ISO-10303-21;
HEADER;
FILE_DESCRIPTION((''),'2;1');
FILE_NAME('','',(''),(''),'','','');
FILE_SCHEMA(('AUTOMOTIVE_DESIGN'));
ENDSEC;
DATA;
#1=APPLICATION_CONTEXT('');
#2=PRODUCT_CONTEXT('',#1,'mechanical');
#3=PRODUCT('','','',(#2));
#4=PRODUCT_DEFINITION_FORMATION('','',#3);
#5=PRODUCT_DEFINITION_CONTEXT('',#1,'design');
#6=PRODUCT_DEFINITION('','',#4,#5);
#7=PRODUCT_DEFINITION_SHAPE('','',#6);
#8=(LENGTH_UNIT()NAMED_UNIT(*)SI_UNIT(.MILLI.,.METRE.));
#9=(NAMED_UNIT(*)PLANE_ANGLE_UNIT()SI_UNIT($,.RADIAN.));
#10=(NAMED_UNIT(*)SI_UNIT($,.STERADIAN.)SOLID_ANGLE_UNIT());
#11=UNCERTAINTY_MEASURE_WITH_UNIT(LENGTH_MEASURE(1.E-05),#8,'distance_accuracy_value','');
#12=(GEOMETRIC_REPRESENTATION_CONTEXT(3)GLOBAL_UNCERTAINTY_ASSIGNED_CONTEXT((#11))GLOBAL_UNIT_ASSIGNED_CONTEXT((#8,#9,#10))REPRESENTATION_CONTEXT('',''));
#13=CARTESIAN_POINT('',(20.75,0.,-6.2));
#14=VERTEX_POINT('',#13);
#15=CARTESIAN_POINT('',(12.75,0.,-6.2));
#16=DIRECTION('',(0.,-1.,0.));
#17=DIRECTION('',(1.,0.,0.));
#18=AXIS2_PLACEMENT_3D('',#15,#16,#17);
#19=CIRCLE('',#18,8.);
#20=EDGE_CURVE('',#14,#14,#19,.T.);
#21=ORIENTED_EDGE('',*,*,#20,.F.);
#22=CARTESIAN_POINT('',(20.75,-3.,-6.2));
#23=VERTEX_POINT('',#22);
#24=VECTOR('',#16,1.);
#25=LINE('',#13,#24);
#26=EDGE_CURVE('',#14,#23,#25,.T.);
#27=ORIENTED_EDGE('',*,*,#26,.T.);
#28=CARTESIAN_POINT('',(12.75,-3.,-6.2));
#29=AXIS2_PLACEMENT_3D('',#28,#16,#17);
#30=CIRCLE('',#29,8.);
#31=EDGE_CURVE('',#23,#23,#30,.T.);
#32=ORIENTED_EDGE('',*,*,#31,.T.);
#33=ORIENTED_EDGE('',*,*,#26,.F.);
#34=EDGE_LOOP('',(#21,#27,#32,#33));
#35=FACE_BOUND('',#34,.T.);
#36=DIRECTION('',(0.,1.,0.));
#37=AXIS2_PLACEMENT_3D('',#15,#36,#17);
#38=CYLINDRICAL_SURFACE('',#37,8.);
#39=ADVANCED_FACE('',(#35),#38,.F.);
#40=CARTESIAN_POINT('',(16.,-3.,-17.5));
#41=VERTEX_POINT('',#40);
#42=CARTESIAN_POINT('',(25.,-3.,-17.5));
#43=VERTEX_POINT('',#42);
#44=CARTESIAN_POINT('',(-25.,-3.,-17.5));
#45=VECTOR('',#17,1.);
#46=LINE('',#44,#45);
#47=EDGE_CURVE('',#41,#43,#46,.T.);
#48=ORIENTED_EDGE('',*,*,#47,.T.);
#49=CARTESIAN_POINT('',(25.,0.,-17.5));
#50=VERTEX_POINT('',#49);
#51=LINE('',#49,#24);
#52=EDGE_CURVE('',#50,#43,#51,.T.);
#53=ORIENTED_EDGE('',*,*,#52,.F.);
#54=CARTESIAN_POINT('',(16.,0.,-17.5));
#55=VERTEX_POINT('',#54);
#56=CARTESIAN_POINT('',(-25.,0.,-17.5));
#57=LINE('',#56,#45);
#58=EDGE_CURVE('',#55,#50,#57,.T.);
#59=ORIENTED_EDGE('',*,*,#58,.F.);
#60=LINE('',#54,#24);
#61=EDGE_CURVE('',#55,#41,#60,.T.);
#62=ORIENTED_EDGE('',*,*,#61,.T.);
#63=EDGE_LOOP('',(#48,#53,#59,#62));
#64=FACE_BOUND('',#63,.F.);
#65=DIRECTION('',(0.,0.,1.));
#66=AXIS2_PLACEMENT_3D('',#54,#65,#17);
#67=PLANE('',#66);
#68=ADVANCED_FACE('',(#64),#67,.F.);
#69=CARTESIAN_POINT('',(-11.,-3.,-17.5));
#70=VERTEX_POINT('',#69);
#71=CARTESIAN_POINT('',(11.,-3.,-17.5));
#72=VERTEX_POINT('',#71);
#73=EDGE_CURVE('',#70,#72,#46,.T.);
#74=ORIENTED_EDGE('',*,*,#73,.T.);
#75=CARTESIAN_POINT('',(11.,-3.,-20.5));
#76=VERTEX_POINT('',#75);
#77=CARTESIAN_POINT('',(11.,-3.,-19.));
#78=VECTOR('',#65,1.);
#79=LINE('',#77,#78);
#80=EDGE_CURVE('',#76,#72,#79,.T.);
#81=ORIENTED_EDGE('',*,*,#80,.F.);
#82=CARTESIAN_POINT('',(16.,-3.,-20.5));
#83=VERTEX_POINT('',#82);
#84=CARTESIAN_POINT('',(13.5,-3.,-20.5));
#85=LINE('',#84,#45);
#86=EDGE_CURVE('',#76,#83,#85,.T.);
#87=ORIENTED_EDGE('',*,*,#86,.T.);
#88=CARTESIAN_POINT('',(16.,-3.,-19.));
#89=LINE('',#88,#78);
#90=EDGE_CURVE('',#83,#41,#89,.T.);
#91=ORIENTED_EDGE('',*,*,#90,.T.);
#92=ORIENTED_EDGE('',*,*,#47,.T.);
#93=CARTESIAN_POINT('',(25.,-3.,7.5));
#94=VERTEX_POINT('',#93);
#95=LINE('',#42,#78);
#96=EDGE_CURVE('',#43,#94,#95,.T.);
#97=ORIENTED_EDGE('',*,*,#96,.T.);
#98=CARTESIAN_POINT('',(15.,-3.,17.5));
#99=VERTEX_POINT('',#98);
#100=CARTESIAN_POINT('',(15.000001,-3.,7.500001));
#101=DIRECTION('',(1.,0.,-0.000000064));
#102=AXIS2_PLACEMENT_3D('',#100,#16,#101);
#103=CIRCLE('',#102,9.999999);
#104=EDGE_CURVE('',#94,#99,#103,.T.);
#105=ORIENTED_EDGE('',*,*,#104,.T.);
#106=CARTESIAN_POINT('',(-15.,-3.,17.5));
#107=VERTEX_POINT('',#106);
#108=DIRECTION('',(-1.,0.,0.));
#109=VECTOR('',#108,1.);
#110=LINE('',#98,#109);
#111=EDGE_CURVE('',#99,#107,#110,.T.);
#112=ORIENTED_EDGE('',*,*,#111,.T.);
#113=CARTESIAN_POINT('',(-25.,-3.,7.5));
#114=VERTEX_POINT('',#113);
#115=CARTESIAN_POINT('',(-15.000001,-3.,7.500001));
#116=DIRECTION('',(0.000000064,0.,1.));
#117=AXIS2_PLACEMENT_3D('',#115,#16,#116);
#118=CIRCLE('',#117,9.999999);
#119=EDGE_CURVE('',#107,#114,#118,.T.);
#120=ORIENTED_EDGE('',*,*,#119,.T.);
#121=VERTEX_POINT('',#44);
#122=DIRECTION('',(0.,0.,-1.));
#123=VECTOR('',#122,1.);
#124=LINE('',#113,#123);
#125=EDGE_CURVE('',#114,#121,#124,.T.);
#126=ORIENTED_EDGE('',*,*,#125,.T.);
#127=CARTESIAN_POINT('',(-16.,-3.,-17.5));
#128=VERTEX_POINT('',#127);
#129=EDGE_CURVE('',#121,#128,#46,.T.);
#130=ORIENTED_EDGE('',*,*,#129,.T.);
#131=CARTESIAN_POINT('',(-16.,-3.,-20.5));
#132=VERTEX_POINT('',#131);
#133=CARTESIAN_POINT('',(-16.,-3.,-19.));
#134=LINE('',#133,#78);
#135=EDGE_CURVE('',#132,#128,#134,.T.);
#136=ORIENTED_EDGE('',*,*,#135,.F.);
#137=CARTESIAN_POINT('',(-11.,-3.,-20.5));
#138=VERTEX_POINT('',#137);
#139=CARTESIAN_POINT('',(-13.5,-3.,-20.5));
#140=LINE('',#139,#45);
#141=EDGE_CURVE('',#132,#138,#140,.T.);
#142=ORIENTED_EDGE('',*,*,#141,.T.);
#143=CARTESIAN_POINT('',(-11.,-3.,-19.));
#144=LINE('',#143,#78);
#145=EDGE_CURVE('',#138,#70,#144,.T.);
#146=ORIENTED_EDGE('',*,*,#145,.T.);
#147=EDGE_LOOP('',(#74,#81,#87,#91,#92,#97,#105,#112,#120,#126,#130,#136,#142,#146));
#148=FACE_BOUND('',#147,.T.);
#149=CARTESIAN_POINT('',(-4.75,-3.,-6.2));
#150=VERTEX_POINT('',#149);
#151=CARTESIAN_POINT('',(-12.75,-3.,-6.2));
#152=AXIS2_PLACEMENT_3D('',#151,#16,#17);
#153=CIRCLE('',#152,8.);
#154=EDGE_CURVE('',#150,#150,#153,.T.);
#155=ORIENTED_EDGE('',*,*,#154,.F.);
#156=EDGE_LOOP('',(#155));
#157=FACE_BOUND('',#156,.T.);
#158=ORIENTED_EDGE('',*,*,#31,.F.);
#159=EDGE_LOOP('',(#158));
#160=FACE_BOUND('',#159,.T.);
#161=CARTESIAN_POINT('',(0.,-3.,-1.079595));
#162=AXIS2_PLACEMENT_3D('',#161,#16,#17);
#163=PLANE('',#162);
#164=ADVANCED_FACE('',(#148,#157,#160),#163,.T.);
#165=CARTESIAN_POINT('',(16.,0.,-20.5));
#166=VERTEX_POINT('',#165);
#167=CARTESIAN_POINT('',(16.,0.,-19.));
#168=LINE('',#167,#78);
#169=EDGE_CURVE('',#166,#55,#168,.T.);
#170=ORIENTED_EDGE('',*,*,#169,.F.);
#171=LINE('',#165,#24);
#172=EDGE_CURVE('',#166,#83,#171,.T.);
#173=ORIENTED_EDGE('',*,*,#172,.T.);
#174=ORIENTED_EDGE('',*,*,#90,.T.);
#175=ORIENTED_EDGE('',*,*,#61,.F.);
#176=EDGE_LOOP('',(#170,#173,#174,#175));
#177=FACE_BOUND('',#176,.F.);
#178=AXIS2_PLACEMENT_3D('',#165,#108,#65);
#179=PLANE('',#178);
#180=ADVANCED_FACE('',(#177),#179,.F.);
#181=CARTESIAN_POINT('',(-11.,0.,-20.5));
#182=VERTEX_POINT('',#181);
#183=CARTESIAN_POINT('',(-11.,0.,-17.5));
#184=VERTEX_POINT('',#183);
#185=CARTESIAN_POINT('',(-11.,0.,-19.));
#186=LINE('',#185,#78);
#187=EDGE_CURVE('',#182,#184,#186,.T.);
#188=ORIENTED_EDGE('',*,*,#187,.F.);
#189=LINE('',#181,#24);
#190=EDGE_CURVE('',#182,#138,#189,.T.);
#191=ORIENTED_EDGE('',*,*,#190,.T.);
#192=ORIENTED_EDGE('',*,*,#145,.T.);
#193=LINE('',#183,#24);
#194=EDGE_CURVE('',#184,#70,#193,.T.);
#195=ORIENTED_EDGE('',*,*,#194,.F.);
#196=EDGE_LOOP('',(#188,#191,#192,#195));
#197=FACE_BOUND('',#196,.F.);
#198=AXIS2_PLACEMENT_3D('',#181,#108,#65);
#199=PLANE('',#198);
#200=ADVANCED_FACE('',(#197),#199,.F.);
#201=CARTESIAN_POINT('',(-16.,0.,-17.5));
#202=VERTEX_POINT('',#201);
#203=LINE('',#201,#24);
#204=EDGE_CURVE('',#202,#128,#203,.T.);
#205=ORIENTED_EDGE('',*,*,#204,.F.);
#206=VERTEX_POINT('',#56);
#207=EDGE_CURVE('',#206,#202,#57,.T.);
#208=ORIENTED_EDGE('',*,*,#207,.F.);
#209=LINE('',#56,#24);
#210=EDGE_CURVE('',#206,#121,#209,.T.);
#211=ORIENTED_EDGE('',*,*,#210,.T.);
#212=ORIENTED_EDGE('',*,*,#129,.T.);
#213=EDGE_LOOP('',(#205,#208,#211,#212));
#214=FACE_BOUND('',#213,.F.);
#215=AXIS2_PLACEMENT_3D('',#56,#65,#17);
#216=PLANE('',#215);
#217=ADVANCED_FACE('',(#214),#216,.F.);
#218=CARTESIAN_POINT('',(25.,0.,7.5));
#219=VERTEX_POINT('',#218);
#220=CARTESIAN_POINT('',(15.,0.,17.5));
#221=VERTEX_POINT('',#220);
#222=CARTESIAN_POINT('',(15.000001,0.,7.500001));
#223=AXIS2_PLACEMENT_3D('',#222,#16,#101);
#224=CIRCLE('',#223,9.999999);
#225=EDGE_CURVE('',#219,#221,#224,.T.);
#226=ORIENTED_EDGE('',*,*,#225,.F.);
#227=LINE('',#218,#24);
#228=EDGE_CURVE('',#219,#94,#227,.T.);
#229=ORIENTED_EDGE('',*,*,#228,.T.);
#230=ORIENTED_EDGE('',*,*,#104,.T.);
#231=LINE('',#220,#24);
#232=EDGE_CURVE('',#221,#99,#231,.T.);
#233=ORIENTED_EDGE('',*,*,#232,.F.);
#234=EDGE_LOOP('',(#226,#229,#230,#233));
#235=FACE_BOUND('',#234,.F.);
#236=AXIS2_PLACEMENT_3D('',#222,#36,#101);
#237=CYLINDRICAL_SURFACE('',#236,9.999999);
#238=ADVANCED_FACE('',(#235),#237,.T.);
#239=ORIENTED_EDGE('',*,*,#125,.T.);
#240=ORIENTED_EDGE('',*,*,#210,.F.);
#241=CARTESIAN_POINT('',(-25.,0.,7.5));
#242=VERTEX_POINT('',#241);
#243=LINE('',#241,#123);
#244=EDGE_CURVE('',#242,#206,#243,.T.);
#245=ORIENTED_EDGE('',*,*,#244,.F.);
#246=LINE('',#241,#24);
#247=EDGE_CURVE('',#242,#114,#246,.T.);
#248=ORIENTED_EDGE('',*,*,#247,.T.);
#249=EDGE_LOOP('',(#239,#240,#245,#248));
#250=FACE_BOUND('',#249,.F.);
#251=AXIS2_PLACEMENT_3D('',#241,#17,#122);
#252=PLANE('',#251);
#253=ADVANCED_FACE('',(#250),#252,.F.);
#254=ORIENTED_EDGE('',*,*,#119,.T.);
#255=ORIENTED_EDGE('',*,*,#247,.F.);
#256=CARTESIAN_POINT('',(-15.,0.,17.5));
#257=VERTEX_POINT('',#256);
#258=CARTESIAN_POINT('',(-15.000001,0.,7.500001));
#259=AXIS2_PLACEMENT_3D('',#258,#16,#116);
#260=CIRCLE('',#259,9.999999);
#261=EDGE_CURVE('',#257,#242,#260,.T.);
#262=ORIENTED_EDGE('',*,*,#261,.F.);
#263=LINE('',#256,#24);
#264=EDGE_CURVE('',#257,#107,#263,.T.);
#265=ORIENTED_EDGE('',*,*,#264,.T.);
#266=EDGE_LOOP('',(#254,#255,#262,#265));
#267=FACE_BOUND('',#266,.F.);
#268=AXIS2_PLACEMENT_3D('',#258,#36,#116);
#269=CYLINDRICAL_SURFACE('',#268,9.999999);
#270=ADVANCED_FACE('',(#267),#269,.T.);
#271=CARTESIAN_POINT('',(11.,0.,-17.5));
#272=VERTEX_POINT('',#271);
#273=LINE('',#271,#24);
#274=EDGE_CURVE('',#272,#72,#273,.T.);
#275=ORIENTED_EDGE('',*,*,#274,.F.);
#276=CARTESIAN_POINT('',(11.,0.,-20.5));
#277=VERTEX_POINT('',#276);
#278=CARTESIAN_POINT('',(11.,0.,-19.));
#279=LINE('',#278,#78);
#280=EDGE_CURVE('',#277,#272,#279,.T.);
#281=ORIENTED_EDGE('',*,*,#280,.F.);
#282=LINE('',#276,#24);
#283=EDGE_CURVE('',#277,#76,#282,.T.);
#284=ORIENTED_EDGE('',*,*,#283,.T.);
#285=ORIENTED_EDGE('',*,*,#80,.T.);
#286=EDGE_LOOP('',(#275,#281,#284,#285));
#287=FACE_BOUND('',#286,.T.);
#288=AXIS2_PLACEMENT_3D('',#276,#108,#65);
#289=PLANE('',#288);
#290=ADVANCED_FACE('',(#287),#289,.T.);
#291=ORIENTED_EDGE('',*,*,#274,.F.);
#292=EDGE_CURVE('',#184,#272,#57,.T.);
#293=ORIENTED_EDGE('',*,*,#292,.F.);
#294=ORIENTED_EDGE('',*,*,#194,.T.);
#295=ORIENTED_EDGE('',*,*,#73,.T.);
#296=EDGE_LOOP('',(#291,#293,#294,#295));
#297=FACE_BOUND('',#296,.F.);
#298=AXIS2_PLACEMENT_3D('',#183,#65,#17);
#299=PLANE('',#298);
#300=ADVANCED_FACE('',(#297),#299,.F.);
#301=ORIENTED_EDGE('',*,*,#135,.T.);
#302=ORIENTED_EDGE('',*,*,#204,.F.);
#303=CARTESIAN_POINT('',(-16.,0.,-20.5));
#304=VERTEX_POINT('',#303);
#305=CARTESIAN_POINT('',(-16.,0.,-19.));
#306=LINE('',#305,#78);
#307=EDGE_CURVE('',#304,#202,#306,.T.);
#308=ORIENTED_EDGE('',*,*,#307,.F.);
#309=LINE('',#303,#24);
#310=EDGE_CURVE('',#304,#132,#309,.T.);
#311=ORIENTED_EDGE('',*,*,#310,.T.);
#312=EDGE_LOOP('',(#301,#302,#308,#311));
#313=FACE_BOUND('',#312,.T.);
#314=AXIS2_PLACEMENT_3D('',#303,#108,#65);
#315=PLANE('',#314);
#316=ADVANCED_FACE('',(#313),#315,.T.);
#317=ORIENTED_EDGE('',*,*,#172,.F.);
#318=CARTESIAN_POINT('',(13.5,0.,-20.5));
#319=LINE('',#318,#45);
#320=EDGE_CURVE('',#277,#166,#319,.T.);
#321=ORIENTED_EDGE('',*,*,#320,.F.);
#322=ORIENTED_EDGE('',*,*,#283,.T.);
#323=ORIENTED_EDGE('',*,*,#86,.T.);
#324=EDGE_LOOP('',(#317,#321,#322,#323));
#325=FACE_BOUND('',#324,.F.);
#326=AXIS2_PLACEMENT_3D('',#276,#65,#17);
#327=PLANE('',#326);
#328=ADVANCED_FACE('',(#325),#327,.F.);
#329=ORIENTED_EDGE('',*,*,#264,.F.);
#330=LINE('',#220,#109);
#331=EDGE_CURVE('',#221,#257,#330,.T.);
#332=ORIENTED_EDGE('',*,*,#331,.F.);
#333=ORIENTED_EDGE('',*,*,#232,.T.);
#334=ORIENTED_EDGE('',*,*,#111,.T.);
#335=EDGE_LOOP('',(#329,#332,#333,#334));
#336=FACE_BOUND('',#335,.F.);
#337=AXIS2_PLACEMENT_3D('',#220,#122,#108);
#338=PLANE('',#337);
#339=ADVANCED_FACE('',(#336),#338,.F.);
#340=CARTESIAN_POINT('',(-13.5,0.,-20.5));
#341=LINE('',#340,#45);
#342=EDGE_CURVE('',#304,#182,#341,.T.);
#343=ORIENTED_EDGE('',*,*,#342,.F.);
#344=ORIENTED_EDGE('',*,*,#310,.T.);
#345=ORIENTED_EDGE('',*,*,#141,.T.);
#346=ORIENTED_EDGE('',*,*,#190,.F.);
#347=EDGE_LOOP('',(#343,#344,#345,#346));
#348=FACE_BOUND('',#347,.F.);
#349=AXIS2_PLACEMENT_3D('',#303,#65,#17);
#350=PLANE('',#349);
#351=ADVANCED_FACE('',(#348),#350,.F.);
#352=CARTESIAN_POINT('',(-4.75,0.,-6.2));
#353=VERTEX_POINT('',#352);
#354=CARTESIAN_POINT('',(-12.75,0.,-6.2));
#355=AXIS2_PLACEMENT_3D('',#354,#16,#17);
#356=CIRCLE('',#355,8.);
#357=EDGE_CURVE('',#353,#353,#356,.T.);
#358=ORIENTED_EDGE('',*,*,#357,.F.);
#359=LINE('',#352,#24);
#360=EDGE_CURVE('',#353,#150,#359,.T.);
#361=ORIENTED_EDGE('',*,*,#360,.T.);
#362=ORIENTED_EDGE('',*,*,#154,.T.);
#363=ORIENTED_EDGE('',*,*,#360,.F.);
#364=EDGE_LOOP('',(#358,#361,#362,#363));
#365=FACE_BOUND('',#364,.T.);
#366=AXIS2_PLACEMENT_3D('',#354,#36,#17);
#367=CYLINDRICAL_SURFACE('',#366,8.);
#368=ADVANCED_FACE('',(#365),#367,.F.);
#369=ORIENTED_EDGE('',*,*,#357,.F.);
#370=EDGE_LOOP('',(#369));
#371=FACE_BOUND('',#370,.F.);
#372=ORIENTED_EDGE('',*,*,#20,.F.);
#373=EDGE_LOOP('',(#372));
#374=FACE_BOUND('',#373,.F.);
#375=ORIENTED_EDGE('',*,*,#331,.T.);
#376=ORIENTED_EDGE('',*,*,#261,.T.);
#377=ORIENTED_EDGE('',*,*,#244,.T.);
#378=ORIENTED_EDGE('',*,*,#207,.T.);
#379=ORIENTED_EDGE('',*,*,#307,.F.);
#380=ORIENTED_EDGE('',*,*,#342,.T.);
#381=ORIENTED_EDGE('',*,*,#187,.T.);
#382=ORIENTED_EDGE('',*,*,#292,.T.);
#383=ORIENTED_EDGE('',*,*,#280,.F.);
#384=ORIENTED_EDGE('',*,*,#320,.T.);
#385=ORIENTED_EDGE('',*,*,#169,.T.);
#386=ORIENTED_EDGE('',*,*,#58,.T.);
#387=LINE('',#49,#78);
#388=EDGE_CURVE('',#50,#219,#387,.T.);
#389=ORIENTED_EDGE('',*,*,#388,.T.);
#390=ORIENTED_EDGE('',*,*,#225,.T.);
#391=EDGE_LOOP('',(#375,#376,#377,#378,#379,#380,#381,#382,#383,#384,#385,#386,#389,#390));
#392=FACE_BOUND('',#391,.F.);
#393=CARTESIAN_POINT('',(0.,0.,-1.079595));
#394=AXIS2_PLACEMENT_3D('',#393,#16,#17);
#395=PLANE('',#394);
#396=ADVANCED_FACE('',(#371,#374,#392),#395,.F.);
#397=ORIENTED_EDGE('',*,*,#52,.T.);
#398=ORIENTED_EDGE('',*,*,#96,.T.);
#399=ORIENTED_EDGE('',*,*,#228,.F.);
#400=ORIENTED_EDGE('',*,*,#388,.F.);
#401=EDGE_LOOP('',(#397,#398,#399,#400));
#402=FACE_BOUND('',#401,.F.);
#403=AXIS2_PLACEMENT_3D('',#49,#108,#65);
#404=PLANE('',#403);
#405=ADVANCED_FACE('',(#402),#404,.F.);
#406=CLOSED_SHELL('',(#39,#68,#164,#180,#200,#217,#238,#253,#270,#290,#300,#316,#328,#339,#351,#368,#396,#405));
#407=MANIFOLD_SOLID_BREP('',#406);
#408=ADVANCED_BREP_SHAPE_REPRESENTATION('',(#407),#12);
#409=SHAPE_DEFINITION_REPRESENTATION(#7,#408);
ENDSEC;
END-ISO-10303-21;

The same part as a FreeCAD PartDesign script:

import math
import FreeCAD as App
import Part
import Sketcher

V = App.Vector
Q = App.Units.Quantity

doc = App.newDocument("Part")
body = doc.addObject("PartDesign::Body", "Body")

sketch1 = body.newObject("Sketcher::SketchObject", "Sketch")
sketch1.AttachmentSupport = (doc.getObject("XZ_Plane"), [""])
sketch1.MapMode = "FlatFace"
sketch1.addGeometry(Part.LineSegment(V(15, 17.5, 0), V(-15, 17.5, 0)), False)
sketch1.addGeometry(Part.ArcOfCircle(Part.Circle(V(-15, 7.5, 0), V(0, 0, 1), 10), math.radians(90), math.radians(180)), False)
sketch1.addGeometry(Part.LineSegment(V(-25, 7.5, 0), V(-25, -17.5, 0)), False)
sketch1.addGeometry(Part.LineSegment(V(-25, -17.5, 0), V(-16, -17.5, 0)), False)
sketch1.addGeometry(Part.LineSegment(V(-16, -17.5, 0), V(-16, -20.5, 0)), False)
sketch1.addGeometry(Part.LineSegment(V(-16, -20.5, 0), V(-11, -20.5, 0)), False)
sketch1.addGeometry(Part.LineSegment(V(-11, -20.5, 0), V(-11, -17.5, 0)), False)
sketch1.addGeometry(Part.LineSegment(V(-11, -17.5, 0), V(11, -17.5, 0)), False)
sketch1.addGeometry(Part.LineSegment(V(11, -17.5, 0), V(11, -20.5, 0)), False)
sketch1.addGeometry(Part.LineSegment(V(11, -20.5, 0), V(16, -20.5, 0)), False)
sketch1.addGeometry(Part.LineSegment(V(16, -20.5, 0), V(16, -17.5, 0)), False)
sketch1.addGeometry(Part.LineSegment(V(16, -17.5, 0), V(25, -17.5, 0)), False)
sketch1.addGeometry(Part.LineSegment(V(25, -17.5, 0), V(25, 7.5, 0)), False)
sketch1.addGeometry(Part.ArcOfCircle(Part.Circle(V(15, 7.5, 0), V(0, 0, 1), 10), math.radians(0), math.radians(90)), False)
sketch1.addGeometry(Part.Circle(V(-12.8, -6.2, 0), V(0, 0, 1), 8), False)
sketch1.addGeometry(Part.Circle(V(12.8, -6.2, 0), V(0, 0, 1), 8), False)
sketch1.addConstraint(Sketcher.Constraint("Tangent", 0, 2, 1, 1))
sketch1.addConstraint(Sketcher.Constraint("Tangent", 1, 2, 2, 1))
sketch1.addConstraint(Sketcher.Constraint("Coincident", 2, 2, 3, 1))
sketch1.addConstraint(Sketcher.Constraint("Coincident", 3, 2, 4, 1))
sketch1.addConstraint(Sketcher.Constraint("Coincident", 4, 2, 5, 1))
sketch1.addConstraint(Sketcher.Constraint("Coincident", 5, 2, 6, 1))
sketch1.addConstraint(Sketcher.Constraint("Coincident", 6, 2, 7, 1))
sketch1.addConstraint(Sketcher.Constraint("Coincident", 7, 2, 8, 1))
sketch1.addConstraint(Sketcher.Constraint("Coincident", 8, 2, 9, 1))
sketch1.addConstraint(Sketcher.Constraint("Coincident", 9, 2, 10, 1))
sketch1.addConstraint(Sketcher.Constraint("Coincident", 10, 2, 11, 1))
sketch1.addConstraint(Sketcher.Constraint("Coincident", 11, 2, 12, 1))
sketch1.addConstraint(Sketcher.Constraint("Tangent", 12, 2, 13, 1))
sketch1.addConstraint(Sketcher.Constraint("Tangent", 13, 2, 0, 1))
sketch1.addConstraint(Sketcher.Constraint("Horizontal", 0))
sketch1.addConstraint(Sketcher.Constraint("Vertical", 2))
sketch1.addConstraint(Sketcher.Constraint("Horizontal", 3))
sketch1.addConstraint(Sketcher.Constraint("Vertical", 4))
sketch1.addConstraint(Sketcher.Constraint("Horizontal", 5))
sketch1.addConstraint(Sketcher.Constraint("Vertical", 6))
sketch1.addConstraint(Sketcher.Constraint("Horizontal", 7))
sketch1.addConstraint(Sketcher.Constraint("Vertical", 8))
sketch1.addConstraint(Sketcher.Constraint("Horizontal", 9))
sketch1.addConstraint(Sketcher.Constraint("Vertical", 10))
sketch1.addConstraint(Sketcher.Constraint("Horizontal", 11))
sketch1.addConstraint(Sketcher.Constraint("Vertical", 12))
sketch1.addConstraint(Sketcher.Constraint("Equal", 1, 13))
sketch1.addConstraint(Sketcher.Constraint("Equal", 14, 15))
sketch1.addConstraint(Sketcher.Constraint("Symmetric", 14, 3, 15, 3, -2))
sketch1.addConstraint(Sketcher.Constraint("Symmetric", 5, 2, 8, 2, -2))
sketch1.addConstraint(Sketcher.Constraint("Symmetric", 3, 2, 10, 2, -2))
sketch1.addConstraint(Sketcher.Constraint("Horizontal", 3, 2, 6, 2))
sketch1.addConstraint(Sketcher.Constraint("Equal", 3, 11))
sketch1.addConstraint(Sketcher.Constraint("Diameter", 14, Q("16 mm")))
sketch1.addConstraint(Sketcher.Constraint("Radius", 1, Q("9.999999 mm")))
sketch1.addConstraint(Sketcher.Constraint("DistanceX", 0, 2, 0, 1, Q("30 mm")))
sketch1.addConstraint(Sketcher.Constraint("DistanceX", 3, 1, 3, 2, Q("9 mm")))
sketch1.addConstraint(Sketcher.Constraint("DistanceX", 5, 1, 5, 2, Q("5 mm")))
sketch1.addConstraint(Sketcher.Constraint("DistanceY", 2, 2, 2, 1, Q("25 mm")))
sketch1.addConstraint(Sketcher.Constraint("DistanceY", 4, 2, 4, 1, Q("3 mm")))
sketch1.addConstraint(Sketcher.Constraint("DistanceY", -1, 1, 1, 3, Q("7.500001 mm")))
sketch1.addConstraint(Sketcher.Constraint("DistanceY", 14, 3, -1, 1, Q("6.2 mm")))
sketch1.addConstraint(Sketcher.Constraint("DistanceX", 14, 3, 15, 3, Q("25.5 mm")))
pad1 = body.newObject("PartDesign::Pad", "Pad")
pad1.Profile = sketch1
pad1.Length = 3

doc.recompute()
